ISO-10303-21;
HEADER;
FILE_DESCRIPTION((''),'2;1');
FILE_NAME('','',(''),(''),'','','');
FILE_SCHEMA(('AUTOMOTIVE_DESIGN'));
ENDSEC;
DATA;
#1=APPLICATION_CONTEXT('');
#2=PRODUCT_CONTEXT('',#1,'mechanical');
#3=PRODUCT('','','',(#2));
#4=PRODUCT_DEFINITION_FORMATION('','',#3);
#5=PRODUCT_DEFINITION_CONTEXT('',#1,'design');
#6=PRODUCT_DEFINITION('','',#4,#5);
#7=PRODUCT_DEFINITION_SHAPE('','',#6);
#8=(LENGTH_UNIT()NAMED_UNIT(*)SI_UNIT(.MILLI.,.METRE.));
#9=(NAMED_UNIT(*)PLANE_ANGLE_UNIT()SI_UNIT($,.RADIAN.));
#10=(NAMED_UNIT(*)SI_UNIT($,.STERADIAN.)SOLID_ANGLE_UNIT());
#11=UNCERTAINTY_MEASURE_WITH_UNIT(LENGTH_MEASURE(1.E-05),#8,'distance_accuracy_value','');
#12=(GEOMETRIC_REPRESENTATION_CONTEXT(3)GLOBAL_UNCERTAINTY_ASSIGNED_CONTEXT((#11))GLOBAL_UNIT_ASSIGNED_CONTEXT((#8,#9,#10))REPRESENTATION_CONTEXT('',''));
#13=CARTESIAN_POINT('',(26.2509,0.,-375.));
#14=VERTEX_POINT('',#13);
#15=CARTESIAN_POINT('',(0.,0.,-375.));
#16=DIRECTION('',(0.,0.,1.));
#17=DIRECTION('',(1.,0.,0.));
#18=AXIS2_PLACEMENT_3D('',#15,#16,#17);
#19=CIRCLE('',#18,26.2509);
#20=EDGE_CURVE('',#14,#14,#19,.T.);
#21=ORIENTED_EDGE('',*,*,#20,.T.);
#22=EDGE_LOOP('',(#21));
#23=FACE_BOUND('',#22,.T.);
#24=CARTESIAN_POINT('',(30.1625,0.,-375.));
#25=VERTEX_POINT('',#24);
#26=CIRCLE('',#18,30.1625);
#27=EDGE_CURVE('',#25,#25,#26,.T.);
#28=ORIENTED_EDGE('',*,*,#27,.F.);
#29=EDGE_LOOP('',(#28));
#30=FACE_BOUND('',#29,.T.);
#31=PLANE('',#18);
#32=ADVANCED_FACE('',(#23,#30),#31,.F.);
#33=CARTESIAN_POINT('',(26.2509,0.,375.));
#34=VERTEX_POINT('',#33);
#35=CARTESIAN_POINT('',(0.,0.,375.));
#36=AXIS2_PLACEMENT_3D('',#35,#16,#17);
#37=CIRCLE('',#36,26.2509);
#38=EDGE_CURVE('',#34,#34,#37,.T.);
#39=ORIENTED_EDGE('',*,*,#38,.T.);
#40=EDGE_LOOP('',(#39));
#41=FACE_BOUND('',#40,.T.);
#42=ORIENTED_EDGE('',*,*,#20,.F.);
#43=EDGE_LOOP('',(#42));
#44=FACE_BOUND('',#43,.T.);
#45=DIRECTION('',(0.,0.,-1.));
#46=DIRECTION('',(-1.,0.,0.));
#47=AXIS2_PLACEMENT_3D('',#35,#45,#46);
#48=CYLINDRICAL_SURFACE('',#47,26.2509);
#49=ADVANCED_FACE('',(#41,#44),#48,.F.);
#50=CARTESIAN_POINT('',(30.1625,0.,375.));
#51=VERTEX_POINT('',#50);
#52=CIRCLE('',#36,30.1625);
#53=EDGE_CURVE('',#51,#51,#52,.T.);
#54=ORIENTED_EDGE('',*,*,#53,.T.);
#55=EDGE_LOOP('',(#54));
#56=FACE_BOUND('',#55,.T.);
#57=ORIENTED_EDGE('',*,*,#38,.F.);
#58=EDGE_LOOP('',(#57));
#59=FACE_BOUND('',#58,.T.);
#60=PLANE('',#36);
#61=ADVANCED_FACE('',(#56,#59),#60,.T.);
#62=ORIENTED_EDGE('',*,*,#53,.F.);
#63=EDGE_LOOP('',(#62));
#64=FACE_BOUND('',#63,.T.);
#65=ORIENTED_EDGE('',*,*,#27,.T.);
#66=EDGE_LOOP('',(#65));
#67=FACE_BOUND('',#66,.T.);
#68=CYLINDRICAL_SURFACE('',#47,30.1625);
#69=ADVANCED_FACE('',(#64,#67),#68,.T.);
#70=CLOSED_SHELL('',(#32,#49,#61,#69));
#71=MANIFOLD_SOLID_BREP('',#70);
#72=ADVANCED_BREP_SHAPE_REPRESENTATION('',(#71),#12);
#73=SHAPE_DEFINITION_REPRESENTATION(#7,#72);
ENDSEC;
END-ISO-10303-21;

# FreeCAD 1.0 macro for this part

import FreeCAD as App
import Part
import Sketcher

V = App.Vector
Q = App.Units.Quantity

doc = App.newDocument("Part")
body = doc.addObject("PartDesign::Body", "Body")

# Sketch on XY plane
sketch1 = body.newObject("Sketcher::SketchObject", "Sketch")
sketch1.AttachmentSupport = (doc.getObject("XY_Plane"), [""])
sketch1.MapMode = "FlatFace"
sketch1.addGeometry([
    Part.Circle(V(0, 0, 0), V(0, 0, 1), 30.1625),
    Part.Circle(V(0, 0, 0), V(0, 0, 1), 26.2509),
], False)
sketch1.addConstraint([
    Sketcher.Constraint("Coincident", 0, 3, -1, 1),
    Sketcher.Constraint("Coincident", 1, 3, -1, 1),
    Sketcher.Constraint("Diameter", 0, Q("2.375 in")),
    Sketcher.Constraint("Diameter", 1, Q("2.067 in")),
])
pad1 = body.newObject("PartDesign::Pad", "Pad")
pad1.Profile = sketch1
pad1.Length = 750
pad1.Midplane = True

doc.recompute()
